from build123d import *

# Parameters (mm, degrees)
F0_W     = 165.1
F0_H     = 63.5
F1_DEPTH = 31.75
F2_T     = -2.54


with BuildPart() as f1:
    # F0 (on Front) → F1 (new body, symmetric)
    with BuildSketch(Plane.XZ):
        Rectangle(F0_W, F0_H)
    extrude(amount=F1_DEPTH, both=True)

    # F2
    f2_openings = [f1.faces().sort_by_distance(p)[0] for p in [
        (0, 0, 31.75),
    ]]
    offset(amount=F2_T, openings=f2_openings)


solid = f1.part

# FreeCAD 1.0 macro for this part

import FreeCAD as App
import Part
import Sketcher
Q = App.Units.Quantity


def faces_at(feature, points):
    """Names of the faces that lie closest to the given points."""
    faces = feature.Shape.Faces
    near = lambda p: min(range(len(faces)), key=lambda i: faces[i].distToShape(Part.Vertex(*p))[0])
    return sorted({f"Face{near(p) + 1}" for p in points})

doc = App.newDocument("Part")
body = doc.addObject("PartDesign::Body", "Body")

# Sketch on XZ plane
sketch1 = body.newObject("Sketcher::SketchObject", "Sketch")
sketch1.AttachmentSupport = (doc.getObject("XZ_Plane"), [""])
sketch1.MapMode = "FlatFace"
sketch1.addGeometry(Part.LineSegment(App.Vector(-82.55, 31.75, 0), App.Vector(-82.55, -31.75, 0)), False)
sketch1.addGeometry(Part.LineSegment(App.Vector(-82.55, -31.75, 0), App.Vector(82.55, -31.75, 0)), False)
sketch1.addGeometry(Part.LineSegment(App.Vector(82.55, -31.75, 0), App.Vector(82.55, 31.75, 0)), False)
sketch1.addGeometry(Part.LineSegment(App.Vector(82.55, 31.75, 0), App.Vector(-82.55, 31.75, 0)), False)
sketch1.addConstraint(Sketcher.Constraint("Coincident", 0, 2, 1, 1))
sketch1.addConstraint(Sketcher.Constraint("Coincident", 1, 2, 2, 1))
sketch1.addConstraint(Sketcher.Constraint("Coincident", 2, 2, 3, 1))
sketch1.addConstraint(Sketcher.Constraint("Coincident", 3, 2, 0, 1))
sketch1.addConstraint(Sketcher.Constraint("Vertical", 0))
sketch1.addConstraint(Sketcher.Constraint("Horizontal", 1))
sketch1.addConstraint(Sketcher.Constraint("Vertical", 2))
sketch1.addConstraint(Sketcher.Constraint("Horizontal", 3))
sketch1.addConstraint(Sketcher.Constraint("Symmetric", 0, 2, 2, 2, -1, 1))
sketch1.addConstraint(Sketcher.Constraint("DistanceX", 1, 1, 1, 2, Q("6.5 in")))
sketch1.addConstraint(Sketcher.Constraint("DistanceY", 0, 2, 0, 1, Q("2.5 in")))
pad1 = body.newObject("PartDesign::Pad", "Pad")
pad1.Profile = sketch1
pad1.Length = Q("2.5 in")
pad1.Midplane = True
doc.recompute()

thickness = body.newObject("PartDesign::Thickness", "Thickness")
thickness.Base = (pad1, faces_at(pad1, [(0, 0, 31.75)]))
thickness.Value = Q("0.1 in")
thickness.Reversed = True
thickness.Join = "Arc"

doc.recompute()
